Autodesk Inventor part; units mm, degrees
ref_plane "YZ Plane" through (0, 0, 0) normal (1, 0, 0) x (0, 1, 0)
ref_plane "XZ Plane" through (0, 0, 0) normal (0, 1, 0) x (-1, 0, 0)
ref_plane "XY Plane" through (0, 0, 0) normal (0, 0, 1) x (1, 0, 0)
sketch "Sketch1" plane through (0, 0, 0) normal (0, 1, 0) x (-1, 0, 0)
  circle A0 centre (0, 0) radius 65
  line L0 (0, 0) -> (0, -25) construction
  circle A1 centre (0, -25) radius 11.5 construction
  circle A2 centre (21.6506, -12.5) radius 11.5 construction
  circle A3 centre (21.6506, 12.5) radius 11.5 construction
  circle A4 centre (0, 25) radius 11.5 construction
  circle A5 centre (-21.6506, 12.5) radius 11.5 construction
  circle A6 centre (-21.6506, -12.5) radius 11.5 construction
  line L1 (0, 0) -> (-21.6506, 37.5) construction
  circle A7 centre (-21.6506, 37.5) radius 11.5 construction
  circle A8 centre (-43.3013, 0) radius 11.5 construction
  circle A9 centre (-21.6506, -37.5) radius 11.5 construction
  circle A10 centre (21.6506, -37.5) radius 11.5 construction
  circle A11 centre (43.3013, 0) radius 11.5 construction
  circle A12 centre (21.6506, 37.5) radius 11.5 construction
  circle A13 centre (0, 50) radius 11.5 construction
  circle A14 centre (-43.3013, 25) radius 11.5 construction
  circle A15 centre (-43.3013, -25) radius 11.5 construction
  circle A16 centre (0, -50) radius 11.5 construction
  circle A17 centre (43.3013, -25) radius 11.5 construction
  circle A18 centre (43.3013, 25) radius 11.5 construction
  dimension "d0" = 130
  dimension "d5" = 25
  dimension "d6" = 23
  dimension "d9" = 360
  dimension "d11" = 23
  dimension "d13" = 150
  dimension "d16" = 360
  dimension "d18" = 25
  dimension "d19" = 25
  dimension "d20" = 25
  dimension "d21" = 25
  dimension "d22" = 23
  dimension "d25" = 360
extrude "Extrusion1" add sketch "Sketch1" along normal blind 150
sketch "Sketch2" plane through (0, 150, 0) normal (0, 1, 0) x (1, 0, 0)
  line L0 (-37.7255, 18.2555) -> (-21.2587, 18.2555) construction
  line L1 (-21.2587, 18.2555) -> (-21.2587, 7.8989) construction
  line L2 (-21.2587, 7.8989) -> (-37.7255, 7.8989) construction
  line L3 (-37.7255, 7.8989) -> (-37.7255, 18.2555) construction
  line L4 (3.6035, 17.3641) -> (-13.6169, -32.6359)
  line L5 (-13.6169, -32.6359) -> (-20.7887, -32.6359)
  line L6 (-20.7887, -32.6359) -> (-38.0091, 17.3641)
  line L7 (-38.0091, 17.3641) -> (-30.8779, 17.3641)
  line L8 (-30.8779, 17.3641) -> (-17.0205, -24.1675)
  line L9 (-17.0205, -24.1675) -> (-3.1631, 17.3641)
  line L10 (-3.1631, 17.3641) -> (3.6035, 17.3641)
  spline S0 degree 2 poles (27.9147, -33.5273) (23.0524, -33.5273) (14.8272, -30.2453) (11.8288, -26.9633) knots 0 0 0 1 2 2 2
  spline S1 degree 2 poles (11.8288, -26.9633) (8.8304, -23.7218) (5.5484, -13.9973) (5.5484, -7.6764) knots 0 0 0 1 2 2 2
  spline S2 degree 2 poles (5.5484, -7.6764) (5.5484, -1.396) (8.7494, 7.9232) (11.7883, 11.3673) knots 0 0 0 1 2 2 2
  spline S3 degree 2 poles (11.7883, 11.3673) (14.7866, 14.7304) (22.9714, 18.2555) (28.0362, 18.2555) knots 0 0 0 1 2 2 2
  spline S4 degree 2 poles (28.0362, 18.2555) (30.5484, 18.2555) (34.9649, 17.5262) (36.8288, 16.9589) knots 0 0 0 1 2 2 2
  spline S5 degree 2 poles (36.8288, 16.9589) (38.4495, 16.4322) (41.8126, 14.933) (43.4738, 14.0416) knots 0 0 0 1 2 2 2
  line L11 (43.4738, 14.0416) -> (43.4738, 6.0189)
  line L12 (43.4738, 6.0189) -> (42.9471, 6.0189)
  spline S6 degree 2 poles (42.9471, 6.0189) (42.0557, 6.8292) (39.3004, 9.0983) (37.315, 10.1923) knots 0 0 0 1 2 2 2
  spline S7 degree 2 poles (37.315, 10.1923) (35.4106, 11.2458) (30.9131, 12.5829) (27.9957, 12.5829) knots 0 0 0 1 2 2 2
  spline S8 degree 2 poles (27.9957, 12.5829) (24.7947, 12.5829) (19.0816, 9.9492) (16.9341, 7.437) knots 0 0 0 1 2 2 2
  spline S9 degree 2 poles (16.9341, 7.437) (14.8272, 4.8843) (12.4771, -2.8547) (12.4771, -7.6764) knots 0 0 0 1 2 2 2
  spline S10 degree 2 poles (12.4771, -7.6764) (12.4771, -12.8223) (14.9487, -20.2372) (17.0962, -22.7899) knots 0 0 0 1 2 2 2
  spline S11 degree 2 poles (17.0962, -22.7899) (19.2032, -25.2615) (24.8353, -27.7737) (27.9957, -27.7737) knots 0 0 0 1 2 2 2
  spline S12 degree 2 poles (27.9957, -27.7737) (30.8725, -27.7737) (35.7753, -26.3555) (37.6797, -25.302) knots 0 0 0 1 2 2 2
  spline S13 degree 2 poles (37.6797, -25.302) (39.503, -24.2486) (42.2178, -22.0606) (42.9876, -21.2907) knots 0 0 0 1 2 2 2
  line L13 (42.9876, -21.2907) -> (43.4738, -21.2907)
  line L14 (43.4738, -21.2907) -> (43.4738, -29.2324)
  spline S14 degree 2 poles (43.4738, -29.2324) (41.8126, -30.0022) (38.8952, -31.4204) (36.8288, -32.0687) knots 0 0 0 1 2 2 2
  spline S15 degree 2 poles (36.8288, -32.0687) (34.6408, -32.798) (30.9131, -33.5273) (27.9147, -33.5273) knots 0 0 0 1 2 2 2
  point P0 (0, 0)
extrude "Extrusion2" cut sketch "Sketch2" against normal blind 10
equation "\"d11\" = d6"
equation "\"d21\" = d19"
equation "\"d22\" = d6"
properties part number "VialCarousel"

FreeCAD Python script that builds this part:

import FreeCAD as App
import Part
import Sketcher
Q = App.Units.Quantity

doc = App.newDocument("Part")
params = doc.addObject("Spreadsheet::Sheet", "Params")
for row, (alias, value) in enumerate([
    ("sketch1_diameter", "130 mm"),
    ("pad1_length", "150 mm"),
    ("pocket1_length", "10 mm"),
], start=1):
    params.set(f"A{row}", alias)
    params.set(f"B{row}", "=" + value)
    params.setAlias(f"B{row}", alias)

body = doc.addObject("PartDesign::Body", "Body")

# Sketch on XZ plane
sketch1 = body.newObject("Sketcher::SketchObject", "Sketch")
sketch1.AttachmentSupport = (doc.getObject("XZ_Plane"), [""])
sketch1.MapMode = "FlatFace"
sketch1.addGeometry(Part.Circle(App.Vector(0, 0, 0), App.Vector(0, 0, 1), 65), False)
sketch1.addConstraint([
    Sketcher.Constraint("Coincident", 0, 3, -1, 1),
    Sketcher.Constraint("Diameter", 0, Q("130 mm")),
])
sketch1.setExpression("Constraints[1]", "Params.sketch1_diameter")
pad1 = body.newObject("PartDesign::Pad", "Pad")
pad1.Profile = sketch1
pad1.setExpression("Length", "Params.pad1_length")
pad1.Reversed = True

# Sketch on XZ plane
sketch2 = body.newObject("Sketcher::SketchObject", "Sketch001")
sketch2.AttachmentSupport = (doc.getObject("XZ_Plane"), [""])
sketch2.MapMode = "FlatFace"
sketch2.AttachmentOffset = App.Placement(App.Vector(0, 0, -150), App.Rotation())
sketch2.addGeometry([
    Part.LineSegment(App.Vector(-13.6169, 32.6359, 0), App.Vector(3.6035, -17.3641, 0)),  # 0
    Part.LineSegment(App.Vector(3.6035, -17.3641, 0), App.Vector(-3.1631, -17.3641, 0)),  # 1
    Part.LineSegment(App.Vector(-3.1631, -17.3641, 0), App.Vector(-17.0205, 24.1675, 0)),  # 2
    Part.LineSegment(App.Vector(-17.0205, 24.1675, 0), App.Vector(-30.8779, -17.3641, 0)),  # 3
    Part.LineSegment(App.Vector(-30.8779, -17.3641, 0), App.Vector(-38.0091, -17.3641, 0)),  # 4
    Part.LineSegment(App.Vector(-38.0091, -17.3641, 0), App.Vector(-20.7887, 32.6359, 0)),  # 5
    Part.LineSegment(App.Vector(-20.7887, 32.6359, 0), App.Vector(-13.6169, 32.6359, 0)),  # 6
    Part.BSplineCurve([App.Vector(27.9147, 33.5273, 0), App.Vector(23.0524, 33.5273, 0), App.Vector(14.8272, 30.2453, 0), App.Vector(11.8288, 26.9633, 0)], [3, 1, 3], [0, 1, 2], False, 2, [1, 1, 1, 1], False),  # 7
    Part.BSplineCurve([App.Vector(36.8288, 32.0687, 0), App.Vector(34.6408, 32.798, 0), App.Vector(30.9131, 33.5273, 0), App.Vector(27.9147, 33.5273, 0)], [3, 1, 3], [0, 1, 2], False, 2, [1, 1, 1, 1], False),  # 8
    Part.BSplineCurve([App.Vector(43.4738, 29.2324, 0), App.Vector(41.8126, 30.0022, 0), App.Vector(38.8952, 31.4204, 0), App.Vector(36.8288, 32.0687, 0)], [3, 1, 3], [0, 1, 2], False, 2, [1, 1, 1, 1], False),  # 9
    Part.LineSegment(App.Vector(43.4738, 29.2324, 0), App.Vector(43.4738, 21.2907, 0)),  # 10
    Part.LineSegment(App.Vector(43.4738, 21.2907, 0), App.Vector(42.9876, 21.2907, 0)),  # 11
    Part.BSplineCurve([App.Vector(37.6797, 25.302, 0), App.Vector(39.503, 24.2486, 0), App.Vector(42.2178, 22.0606, 0), App.Vector(42.9876, 21.2907, 0)], [3, 1, 3], [0, 1, 2], False, 2, [1, 1, 1, 1], False),  # 12
    Part.BSplineCurve([App.Vector(27.9957, 27.7737, 0), App.Vector(30.8725, 27.7737, 0), App.Vector(35.7753, 26.3555, 0), App.Vector(37.6797, 25.302, 0)], [3, 1, 3], [0, 1, 2], False, 2, [1, 1, 1, 1], False),  # 13
    Part.BSplineCurve([App.Vector(17.0962, 22.7899, 0), App.Vector(19.2032, 25.2615, 0), App.Vector(24.8353, 27.7737, 0), App.Vector(27.9957, 27.7737, 0)], [3, 1, 3], [0, 1, 2], False, 2, [1, 1, 1, 1], False),  # 14
    Part.BSplineCurve([App.Vector(12.4771, 7.6764, 0), App.Vector(12.4771, 12.8223, 0), App.Vector(14.9487, 20.2372, 0), App.Vector(17.0962, 22.7899, 0)], [3, 1, 3], [0, 1, 2], False, 2, [1, 1, 1, 1], False),  # 15
    Part.BSplineCurve([App.Vector(16.9341, -7.437, 0), App.Vector(14.8272, -4.8843, 0), App.Vector(12.4771, 2.8547, 0), App.Vector(12.4771, 7.6764, 0)], [3, 1, 3], [0, 1, 2], False, 2, [1, 1, 1, 1], False),  # 16
    Part.BSplineCurve([App.Vector(27.9957, -12.5829, 0), App.Vector(24.7947, -12.5829, 0), App.Vector(19.0816, -9.9492, 0), App.Vector(16.9341, -7.437, 0)], [3, 1, 3], [0, 1, 2], False, 2, [1, 1, 1, 1], False),  # 17
    Part.BSplineCurve([App.Vector(37.315, -10.1923, 0), App.Vector(35.4106, -11.2458, 0), App.Vector(30.9131, -12.5829, 0), App.Vector(27.9957, -12.5829, 0)], [3, 1, 3], [0, 1, 2], False, 2, [1, 1, 1, 1], False),  # 18
    Part.BSplineCurve([App.Vector(42.9471, -6.0189, 0), App.Vector(42.0557, -6.8292, 0), App.Vector(39.3004, -9.0983, 0), App.Vector(37.315, -10.1923, 0)], [3, 1, 3], [0, 1, 2], False, 2, [1, 1, 1, 1], False),  # 19
    Part.LineSegment(App.Vector(42.9471, -6.0189, 0), App.Vector(43.4738, -6.0189, 0)),  # 20
    Part.LineSegment(App.Vector(43.4738, -6.0189, 0), App.Vector(43.4738, -14.0416, 0)),  # 21
    Part.BSplineCurve([App.Vector(36.8288, -16.9589, 0), App.Vector(38.4495, -16.4322, 0), App.Vector(41.8126, -14.933, 0), App.Vector(43.4738, -14.0416, 0)], [3, 1, 3], [0, 1, 2], False, 2, [1, 1, 1, 1], False),  # 22
    Part.BSplineCurve([App.Vector(28.0362, -18.2555, 0), App.Vector(30.5484, -18.2555, 0), App.Vector(34.9649, -17.5262, 0), App.Vector(36.8288, -16.9589, 0)], [3, 1, 3], [0, 1, 2], False, 2, [1, 1, 1, 1], False),  # 23
    Part.BSplineCurve([App.Vector(11.7883, -11.3673, 0), App.Vector(14.7866, -14.7304, 0), App.Vector(22.9714, -18.2555, 0), App.Vector(28.0362, -18.2555, 0)], [3, 1, 3], [0, 1, 2], False, 2, [1, 1, 1, 1], False),  # 24
    Part.BSplineCurve([App.Vector(5.5484, 7.6764, 0), App.Vector(5.5484, 1.396, 0), App.Vector(8.7494, -7.9232, 0), App.Vector(11.7883, -11.3673, 0)], [3, 1, 3], [0, 1, 2], False, 2, [1, 1, 1, 1], False),  # 25
    Part.BSplineCurve([App.Vector(11.8288, 26.9633, 0), App.Vector(8.8304, 23.7218, 0), App.Vector(5.5484, 13.9973, 0), App.Vector(5.5484, 7.6764, 0)], [3, 1, 3], [0, 1, 2], False, 2, [1, 1, 1, 1], False),  # 26
], False)
sketch2.addConstraint([
    Sketcher.Constraint("Block", 7),
    Sketcher.Constraint("Block", 8),
    Sketcher.Constraint("Block", 9),
    Sketcher.Constraint("Block", 12),
    Sketcher.Constraint("Block", 13),
    Sketcher.Constraint("Block", 14),
    Sketcher.Constraint("Block", 15),
    Sketcher.Constraint("Block", 16),
    Sketcher.Constraint("Block", 17),
    Sketcher.Constraint("Block", 18),
    Sketcher.Constraint("Block", 19),
    Sketcher.Constraint("Block", 22),
    Sketcher.Constraint("Block", 23),
    Sketcher.Constraint("Block", 24),
    Sketcher.Constraint("Block", 25),
    Sketcher.Constraint("Block", 26),
    Sketcher.Constraint("Coincident", 0, 2, 1, 1),
    Sketcher.Constraint("Coincident", 1, 2, 2, 1),
    Sketcher.Constraint("Coincident", 2, 2, 3, 1),
    Sketcher.Constraint("Coincident", 3, 2, 4, 1),
    Sketcher.Constraint("Coincident", 4, 2, 5, 1),
    Sketcher.Constraint("Coincident", 5, 2, 6, 1),
    Sketcher.Constraint("Coincident", 6, 2, 0, 1),
    Sketcher.Constraint("Coincident", 9, 1, 10, 1),
    Sketcher.Constraint("Coincident", 10, 2, 11, 1),
    Sketcher.Constraint("Coincident", 11, 2, 12, 2),
    Sketcher.Constraint("Coincident", 19, 1, 20, 1),
    Sketcher.Constraint("Coincident", 20, 2, 21, 1),
    Sketcher.Constraint("Coincident", 21, 2, 22, 2),
    Sketcher.Constraint("Horizontal", 1),
    Sketcher.Constraint("Horizontal", 4),
    Sketcher.Constraint("Horizontal", 6),
    Sketcher.Constraint("Vertical", 10),
    Sketcher.Constraint("Horizontal", 11),
    Sketcher.Constraint("Horizontal", 20),
    Sketcher.Constraint("Vertical", 21),
    Sketcher.Constraint("Horizontal", 1, 2, 3, 2),
    Sketcher.Constraint("Equal", 2, 3),
    Sketcher.Constraint("Equal", 0, 5),
    Sketcher.Constraint("DistanceY", 3, 2, 5, 2, Q("50 mm")),
    Sketcher.Constraint("DistanceX", 1, 2, 1, 1, Q("6.7666 mm")),
    Sketcher.Constraint("DistanceX", 4, 2, 4, 1, Q("7.1312 mm")),
    Sketcher.Constraint("DistanceX", 6, 1, 6, 2, Q("7.1718 mm")),
    Sketcher.Constraint("DistanceY", 0, 2, -1, 1, Q("17.364 mm")),
    Sketcher.Constraint("DistanceX", 1, 2, -1, 1, Q("3.163 mm")),
    Sketcher.Constraint("DistanceX", 3, 2, -1, 1, Q("30.878 mm")),
    Sketcher.Constraint("Distance", 2, Q("43.7824 mm")),
])
pocket1 = body.newObject("PartDesign::Pocket", "Pocket")
pocket1.Profile = sketch2
pocket1.setExpression("Length", "Params.pocket1_length")
pocket1.Reversed = True

doc.recompute()
